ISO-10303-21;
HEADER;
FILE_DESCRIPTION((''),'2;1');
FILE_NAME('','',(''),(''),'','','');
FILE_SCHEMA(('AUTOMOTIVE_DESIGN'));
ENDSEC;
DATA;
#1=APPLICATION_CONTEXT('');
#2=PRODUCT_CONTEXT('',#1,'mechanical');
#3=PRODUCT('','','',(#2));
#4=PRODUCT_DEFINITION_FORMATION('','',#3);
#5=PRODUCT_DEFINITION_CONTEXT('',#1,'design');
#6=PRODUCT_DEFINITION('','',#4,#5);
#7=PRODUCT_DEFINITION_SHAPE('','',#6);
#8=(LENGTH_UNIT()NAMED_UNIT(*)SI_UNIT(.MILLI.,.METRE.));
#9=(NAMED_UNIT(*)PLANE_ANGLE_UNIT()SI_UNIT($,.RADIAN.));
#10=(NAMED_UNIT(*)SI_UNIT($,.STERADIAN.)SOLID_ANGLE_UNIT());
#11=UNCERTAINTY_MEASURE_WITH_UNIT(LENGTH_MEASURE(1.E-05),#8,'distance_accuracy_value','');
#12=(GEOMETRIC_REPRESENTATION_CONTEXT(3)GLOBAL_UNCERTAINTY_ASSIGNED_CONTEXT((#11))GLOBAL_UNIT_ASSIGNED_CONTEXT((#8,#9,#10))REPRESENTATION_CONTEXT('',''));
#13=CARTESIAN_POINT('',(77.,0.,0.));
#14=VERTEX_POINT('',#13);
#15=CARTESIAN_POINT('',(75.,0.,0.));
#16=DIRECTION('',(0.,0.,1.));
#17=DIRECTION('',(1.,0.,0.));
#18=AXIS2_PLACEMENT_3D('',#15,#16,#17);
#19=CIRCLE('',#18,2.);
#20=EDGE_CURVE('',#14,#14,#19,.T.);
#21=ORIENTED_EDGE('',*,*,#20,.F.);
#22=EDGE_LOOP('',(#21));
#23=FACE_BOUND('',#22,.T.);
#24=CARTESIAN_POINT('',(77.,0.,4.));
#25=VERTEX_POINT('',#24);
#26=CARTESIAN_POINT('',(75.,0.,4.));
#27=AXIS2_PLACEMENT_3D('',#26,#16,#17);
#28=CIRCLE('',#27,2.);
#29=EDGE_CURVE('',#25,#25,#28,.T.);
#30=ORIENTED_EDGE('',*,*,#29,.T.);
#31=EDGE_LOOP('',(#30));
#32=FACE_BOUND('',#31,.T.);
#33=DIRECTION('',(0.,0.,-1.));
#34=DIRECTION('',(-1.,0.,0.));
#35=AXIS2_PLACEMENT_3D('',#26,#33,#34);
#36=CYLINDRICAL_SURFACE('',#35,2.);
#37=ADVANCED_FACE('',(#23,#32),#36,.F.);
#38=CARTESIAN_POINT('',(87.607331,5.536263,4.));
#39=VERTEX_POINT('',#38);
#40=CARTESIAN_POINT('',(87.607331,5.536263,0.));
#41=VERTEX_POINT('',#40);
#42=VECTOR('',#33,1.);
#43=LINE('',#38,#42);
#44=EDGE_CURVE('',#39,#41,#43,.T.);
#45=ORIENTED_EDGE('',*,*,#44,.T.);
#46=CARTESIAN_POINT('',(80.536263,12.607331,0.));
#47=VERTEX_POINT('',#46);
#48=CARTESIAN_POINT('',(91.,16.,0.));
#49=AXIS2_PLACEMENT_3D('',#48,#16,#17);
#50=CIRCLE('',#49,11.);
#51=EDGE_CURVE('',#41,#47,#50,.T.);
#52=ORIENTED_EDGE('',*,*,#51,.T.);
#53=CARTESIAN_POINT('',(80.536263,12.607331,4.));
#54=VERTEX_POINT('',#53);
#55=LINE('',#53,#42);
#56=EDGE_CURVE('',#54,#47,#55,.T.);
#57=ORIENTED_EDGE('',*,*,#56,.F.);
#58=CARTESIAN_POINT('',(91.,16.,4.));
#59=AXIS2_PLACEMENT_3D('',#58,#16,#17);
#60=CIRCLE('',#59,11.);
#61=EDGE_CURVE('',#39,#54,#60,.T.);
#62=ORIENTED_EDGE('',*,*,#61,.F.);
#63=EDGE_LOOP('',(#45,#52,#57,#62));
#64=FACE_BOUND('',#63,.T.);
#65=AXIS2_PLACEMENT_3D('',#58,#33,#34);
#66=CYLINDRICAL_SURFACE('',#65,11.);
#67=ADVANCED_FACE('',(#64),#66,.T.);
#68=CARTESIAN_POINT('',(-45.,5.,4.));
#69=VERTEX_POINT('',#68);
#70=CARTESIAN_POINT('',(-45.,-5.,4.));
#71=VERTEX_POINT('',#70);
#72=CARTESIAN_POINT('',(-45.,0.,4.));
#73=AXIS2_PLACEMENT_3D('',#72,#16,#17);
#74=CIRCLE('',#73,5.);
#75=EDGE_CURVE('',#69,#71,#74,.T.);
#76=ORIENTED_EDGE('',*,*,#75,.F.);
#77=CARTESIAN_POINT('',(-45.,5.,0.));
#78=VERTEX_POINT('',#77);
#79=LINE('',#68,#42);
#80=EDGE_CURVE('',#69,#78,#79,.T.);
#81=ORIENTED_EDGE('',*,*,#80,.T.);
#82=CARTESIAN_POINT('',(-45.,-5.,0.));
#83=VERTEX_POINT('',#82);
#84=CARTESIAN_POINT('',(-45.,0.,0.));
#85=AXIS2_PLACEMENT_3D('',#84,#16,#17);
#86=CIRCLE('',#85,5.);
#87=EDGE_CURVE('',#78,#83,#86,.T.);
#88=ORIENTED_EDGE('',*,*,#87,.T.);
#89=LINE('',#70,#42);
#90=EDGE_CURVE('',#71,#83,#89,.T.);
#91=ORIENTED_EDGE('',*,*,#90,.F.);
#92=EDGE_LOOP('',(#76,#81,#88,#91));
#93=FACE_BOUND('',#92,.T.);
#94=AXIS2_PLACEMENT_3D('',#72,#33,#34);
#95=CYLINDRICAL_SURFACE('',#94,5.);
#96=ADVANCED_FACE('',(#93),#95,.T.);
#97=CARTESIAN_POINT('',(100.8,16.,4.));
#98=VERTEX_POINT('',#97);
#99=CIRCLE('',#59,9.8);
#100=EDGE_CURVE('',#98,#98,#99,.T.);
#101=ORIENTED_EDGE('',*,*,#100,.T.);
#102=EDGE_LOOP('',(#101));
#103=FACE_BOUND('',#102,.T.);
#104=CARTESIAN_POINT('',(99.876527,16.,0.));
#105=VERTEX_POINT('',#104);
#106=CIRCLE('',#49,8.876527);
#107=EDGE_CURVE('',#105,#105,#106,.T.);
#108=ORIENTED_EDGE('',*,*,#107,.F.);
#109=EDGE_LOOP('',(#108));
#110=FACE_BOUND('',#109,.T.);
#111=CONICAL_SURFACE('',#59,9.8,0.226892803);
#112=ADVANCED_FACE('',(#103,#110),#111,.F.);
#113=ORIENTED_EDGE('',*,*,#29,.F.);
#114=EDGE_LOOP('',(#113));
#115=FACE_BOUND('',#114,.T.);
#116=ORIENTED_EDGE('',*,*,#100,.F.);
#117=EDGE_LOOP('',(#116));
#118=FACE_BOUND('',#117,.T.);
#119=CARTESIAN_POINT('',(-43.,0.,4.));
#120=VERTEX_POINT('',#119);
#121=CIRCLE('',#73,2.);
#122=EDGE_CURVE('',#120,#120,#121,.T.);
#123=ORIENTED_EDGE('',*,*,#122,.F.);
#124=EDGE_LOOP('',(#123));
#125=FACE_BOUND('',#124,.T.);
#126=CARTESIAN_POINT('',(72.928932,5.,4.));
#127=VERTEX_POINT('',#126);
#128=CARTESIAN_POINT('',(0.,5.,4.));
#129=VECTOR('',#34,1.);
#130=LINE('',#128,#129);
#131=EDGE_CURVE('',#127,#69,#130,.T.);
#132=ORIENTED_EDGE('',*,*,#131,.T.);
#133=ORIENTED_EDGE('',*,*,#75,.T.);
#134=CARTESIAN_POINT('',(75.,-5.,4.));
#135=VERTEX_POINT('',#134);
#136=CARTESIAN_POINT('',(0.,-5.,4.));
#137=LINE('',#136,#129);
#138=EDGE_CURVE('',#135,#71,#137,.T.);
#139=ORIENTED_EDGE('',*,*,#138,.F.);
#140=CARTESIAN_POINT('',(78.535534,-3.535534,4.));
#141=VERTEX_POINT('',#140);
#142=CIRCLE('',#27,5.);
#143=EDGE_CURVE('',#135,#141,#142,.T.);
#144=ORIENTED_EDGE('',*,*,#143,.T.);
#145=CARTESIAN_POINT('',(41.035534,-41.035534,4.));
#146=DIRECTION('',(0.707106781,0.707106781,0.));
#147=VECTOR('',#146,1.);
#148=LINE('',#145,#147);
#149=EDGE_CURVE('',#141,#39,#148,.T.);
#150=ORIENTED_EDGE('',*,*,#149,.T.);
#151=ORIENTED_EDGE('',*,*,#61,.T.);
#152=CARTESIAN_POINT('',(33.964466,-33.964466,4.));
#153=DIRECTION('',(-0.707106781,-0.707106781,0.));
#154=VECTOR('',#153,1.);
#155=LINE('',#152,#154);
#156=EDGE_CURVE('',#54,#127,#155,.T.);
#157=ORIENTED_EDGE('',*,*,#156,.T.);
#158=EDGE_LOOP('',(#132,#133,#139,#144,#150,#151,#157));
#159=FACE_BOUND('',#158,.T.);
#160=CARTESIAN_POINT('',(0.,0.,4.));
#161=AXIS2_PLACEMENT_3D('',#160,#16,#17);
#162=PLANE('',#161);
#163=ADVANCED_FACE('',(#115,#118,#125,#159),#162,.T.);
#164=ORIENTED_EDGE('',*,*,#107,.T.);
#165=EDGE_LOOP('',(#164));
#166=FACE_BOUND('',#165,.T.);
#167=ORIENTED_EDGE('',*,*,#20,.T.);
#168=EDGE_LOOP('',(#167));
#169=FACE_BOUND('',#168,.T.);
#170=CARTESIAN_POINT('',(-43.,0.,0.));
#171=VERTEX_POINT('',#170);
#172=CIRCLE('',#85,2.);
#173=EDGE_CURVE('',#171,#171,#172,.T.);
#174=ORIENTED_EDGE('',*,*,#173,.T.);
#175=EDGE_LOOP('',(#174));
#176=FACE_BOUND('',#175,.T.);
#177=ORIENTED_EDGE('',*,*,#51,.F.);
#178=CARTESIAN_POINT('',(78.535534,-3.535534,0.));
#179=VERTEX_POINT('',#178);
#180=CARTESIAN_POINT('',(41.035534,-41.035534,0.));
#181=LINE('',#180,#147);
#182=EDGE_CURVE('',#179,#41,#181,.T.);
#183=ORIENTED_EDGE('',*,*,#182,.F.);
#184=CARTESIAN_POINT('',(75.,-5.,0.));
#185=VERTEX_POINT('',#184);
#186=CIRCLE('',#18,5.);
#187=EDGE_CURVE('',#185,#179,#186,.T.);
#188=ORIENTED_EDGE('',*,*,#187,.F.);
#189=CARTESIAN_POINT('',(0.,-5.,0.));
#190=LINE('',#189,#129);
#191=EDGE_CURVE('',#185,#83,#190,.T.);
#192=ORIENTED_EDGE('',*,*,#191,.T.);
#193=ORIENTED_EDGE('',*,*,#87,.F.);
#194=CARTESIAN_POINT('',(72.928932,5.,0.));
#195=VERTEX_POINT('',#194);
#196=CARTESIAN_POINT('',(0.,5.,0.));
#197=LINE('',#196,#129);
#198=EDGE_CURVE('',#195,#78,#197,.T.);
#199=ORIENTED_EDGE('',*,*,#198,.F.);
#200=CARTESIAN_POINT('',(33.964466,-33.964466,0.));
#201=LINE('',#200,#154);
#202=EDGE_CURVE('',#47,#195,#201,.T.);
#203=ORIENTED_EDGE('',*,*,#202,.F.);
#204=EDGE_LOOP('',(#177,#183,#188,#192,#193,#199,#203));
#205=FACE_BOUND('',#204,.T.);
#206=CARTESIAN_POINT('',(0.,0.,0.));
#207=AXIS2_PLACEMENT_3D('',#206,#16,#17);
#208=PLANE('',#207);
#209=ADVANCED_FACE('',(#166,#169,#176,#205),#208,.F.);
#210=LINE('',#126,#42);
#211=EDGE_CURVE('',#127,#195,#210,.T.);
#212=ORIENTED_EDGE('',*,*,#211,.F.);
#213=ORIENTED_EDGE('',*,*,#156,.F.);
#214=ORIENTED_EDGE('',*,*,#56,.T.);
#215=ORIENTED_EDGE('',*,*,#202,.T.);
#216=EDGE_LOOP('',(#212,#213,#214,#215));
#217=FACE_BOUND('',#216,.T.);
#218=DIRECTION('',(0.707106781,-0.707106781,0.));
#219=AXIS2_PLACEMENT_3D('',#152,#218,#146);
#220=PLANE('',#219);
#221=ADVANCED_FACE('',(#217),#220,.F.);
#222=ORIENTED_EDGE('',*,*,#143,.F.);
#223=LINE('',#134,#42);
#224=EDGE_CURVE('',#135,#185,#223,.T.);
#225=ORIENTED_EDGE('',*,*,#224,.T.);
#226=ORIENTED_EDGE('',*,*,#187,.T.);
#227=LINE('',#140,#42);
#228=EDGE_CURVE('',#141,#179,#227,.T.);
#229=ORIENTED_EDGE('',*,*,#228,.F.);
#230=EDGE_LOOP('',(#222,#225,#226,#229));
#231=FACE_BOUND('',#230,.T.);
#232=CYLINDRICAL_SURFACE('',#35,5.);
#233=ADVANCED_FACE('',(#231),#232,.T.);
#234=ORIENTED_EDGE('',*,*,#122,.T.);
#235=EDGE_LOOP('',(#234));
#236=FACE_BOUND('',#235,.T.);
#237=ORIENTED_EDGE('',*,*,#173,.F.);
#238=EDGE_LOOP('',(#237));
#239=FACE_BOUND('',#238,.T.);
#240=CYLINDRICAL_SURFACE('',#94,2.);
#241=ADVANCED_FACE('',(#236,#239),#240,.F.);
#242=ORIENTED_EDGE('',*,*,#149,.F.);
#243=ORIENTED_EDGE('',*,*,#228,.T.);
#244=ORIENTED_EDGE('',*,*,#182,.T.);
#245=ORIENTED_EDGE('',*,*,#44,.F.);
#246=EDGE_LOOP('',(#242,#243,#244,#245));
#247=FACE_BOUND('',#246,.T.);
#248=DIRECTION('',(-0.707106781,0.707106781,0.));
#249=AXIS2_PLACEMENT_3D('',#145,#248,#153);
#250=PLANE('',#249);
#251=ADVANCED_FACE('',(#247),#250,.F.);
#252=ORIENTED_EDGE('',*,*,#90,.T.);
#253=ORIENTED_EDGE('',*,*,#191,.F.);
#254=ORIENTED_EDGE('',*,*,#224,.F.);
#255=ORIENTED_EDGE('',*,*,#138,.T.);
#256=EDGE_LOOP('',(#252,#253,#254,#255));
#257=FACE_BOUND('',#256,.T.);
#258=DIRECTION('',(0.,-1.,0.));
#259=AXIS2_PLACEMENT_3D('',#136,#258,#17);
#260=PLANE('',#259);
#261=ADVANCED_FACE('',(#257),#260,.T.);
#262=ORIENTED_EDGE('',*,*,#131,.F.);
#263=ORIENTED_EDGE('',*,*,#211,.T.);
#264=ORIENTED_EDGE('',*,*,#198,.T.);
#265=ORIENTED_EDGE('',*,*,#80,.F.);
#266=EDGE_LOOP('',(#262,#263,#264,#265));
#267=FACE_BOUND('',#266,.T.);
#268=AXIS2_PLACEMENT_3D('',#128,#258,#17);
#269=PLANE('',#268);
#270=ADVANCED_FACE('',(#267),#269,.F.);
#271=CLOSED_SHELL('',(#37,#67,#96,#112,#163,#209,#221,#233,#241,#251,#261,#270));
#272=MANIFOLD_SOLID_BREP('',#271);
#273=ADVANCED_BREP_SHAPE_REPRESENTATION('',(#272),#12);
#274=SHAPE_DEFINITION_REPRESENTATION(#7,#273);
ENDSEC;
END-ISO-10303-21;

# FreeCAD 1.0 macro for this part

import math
import FreeCAD as App
import Part
import Sketcher

V = App.Vector
Q = App.Units.Quantity


def faces_at(feature, points):
    """Names of the faces that lie closest to the given points."""
    faces = feature.Shape.Faces
    near = lambda p: min(range(len(faces)), key=lambda i: faces[i].distToShape(Part.Vertex(*p))[0])
    return sorted({f"Face{near(p) + 1}" for p in points})

doc = App.newDocument("Part")
body = doc.addObject("PartDesign::Body", "Body")

# Sketch on XY plane
sketch1 = body.newObject("Sketcher::SketchObject", "Sketch")
sketch1.AttachmentSupport = (doc.getObject("XY_Plane"), [""])
sketch1.MapMode = "FlatFace"
sketch1.addGeometry([
    Part.ArcOfCircle(Part.Circle(V(75, 0, 0), V(0, 0, 1), 5), math.radians(-90), math.radians(-45)),  # 0
    Part.LineSegment(V(78.5, -3.5, 0), V(87.6, 5.5, 0)),  # 1
    Part.ArcOfCircle(Part.Circle(V(91, 16, 0), V(0, 0, 1), 11), math.radians(-108), math.radians(198)),  # 2
    Part.LineSegment(V(80.5, 12.6, 0), V(72.9, 5, 0)),  # 3
    Part.LineSegment(V(72.9, 5, 0), V(-45, 5, 0)),  # 4
    Part.ArcOfCircle(Part.Circle(V(-45, 0, 0), V(0, 0, 1), 5), math.radians(90), math.radians(270)),  # 5
    Part.LineSegment(V(-45, -5, 0), V(75, -5, 0)),  # 6
    Part.Circle(V(-45, 0, 0), V(0, 0, 1), 2),  # 7
    Part.Circle(V(75, 0, 0), V(0, 0, 1), 2),  # 8
    Part.Circle(V(91, 16, 0), V(0, 0, 1), 8.8),  # 9
], False)
sketch1.addConstraint([
    Sketcher.Constraint("Tangent", 0, 2, 1, 1),
    Sketcher.Constraint("Coincident", 1, 2, 2, 1),
    Sketcher.Constraint("Coincident", 2, 2, 3, 1),
    Sketcher.Constraint("Coincident", 3, 2, 4, 1),
    Sketcher.Constraint("Tangent", 4, 2, 5, 1),
    Sketcher.Constraint("Tangent", 5, 2, 6, 1),
    Sketcher.Constraint("Tangent", 6, 2, 0, 1),
    Sketcher.Constraint("Horizontal", 4),
    Sketcher.Constraint("Horizontal", 6),
    Sketcher.Constraint("Coincident", 7, 3, 5, 3),
    Sketcher.Constraint("Coincident", 8, 3, 0, 3),
    Sketcher.Constraint("Coincident", 9, 3, 2, 3),
    Sketcher.Constraint("Equal", 0, 5),
    Sketcher.Constraint("Equal", 7, 8),
    Sketcher.Constraint("PointOnObject", 0, 3, -1),
    Sketcher.Constraint("Parallel", 1, 3),
    Sketcher.Constraint("Diameter", 7, Q("4 mm")),
    Sketcher.Constraint("Radius", 0, Q("5 mm")),
    Sketcher.Constraint("Radius", 2, Q("11 mm")),
    Sketcher.Constraint("Diameter", 9, Q("17.6 mm")),
    Sketcher.Constraint("DistanceX", 6, 1, 6, 2, Q("120 mm")),
    Sketcher.Constraint("Angle", 1, Q("45 deg")),
    Sketcher.Constraint("DistanceX", -1, 1, 0, 3, Q("75 mm")),
    Sketcher.Constraint("DistanceX", -1, 1, 2, 3, Q("91 mm")),
    Sketcher.Constraint("DistanceY", -1, 1, 2, 3, Q("16 mm")),
    Sketcher.Constraint("DistanceX", 3, 2, 0, 2, Q("5.606602 mm")),
])
pad1 = body.newObject("PartDesign::Pad", "Pad")
pad1.Profile = sketch1
pad1.Length = 4
body2 = doc.addObject("PartDesign::Body", "Body001")

# Sketch on XY plane
sketch2 = body2.newObject("Sketcher::SketchObject", "Sketch001")
sketch2.AttachmentSupport = (doc.getObject("XY_Plane001"), [""])
sketch2.MapMode = "FlatFace"
sketch2.AttachmentOffset = App.Placement(V(0, 0, 4), App.Rotation())
sketch2.addGeometry(Part.Circle(V(91, 16, 0), V(0, 0, 1), 10), False)
sketch2.addConstraint([
    Sketcher.Constraint("Diameter", 0, Q("19.6 mm")),
    Sketcher.Constraint("DistanceX", -1, 1, 0, 3, Q("91 mm")),
    Sketcher.Constraint("DistanceY", -1, 1, 0, 3, Q("16 mm")),
])
pad2 = body2.newObject("PartDesign::Pad", "Pad001")
pad2.Profile = sketch2
pad2.Length = 4
pad2.Reversed = True
doc.recompute()

datumplane = body2.newObject("PartDesign::Plane", "DatumPlane")
datumplane.AttachmentSupport = (doc.getObject("XY_Plane001"), [""])
datumplane.MapMode = "FlatFace"
datumplane.AttachmentOffset = App.Placement(V(0, 0, 4), App.Rotation())
draft = body2.newObject("PartDesign::Draft", "Draft")
draft.Base = (pad2, faces_at(pad2, [(81.2, 16, 2)]))
draft.NeutralPlane = (datumplane, [""])
draft.Angle = 13
draft.Reversed = True
doc.recompute()

boolean = body.newObject("PartDesign::Boolean", "Boolean")
boolean.Type = "Cut"
boolean.addObjects([body2])

doc.recompute()
